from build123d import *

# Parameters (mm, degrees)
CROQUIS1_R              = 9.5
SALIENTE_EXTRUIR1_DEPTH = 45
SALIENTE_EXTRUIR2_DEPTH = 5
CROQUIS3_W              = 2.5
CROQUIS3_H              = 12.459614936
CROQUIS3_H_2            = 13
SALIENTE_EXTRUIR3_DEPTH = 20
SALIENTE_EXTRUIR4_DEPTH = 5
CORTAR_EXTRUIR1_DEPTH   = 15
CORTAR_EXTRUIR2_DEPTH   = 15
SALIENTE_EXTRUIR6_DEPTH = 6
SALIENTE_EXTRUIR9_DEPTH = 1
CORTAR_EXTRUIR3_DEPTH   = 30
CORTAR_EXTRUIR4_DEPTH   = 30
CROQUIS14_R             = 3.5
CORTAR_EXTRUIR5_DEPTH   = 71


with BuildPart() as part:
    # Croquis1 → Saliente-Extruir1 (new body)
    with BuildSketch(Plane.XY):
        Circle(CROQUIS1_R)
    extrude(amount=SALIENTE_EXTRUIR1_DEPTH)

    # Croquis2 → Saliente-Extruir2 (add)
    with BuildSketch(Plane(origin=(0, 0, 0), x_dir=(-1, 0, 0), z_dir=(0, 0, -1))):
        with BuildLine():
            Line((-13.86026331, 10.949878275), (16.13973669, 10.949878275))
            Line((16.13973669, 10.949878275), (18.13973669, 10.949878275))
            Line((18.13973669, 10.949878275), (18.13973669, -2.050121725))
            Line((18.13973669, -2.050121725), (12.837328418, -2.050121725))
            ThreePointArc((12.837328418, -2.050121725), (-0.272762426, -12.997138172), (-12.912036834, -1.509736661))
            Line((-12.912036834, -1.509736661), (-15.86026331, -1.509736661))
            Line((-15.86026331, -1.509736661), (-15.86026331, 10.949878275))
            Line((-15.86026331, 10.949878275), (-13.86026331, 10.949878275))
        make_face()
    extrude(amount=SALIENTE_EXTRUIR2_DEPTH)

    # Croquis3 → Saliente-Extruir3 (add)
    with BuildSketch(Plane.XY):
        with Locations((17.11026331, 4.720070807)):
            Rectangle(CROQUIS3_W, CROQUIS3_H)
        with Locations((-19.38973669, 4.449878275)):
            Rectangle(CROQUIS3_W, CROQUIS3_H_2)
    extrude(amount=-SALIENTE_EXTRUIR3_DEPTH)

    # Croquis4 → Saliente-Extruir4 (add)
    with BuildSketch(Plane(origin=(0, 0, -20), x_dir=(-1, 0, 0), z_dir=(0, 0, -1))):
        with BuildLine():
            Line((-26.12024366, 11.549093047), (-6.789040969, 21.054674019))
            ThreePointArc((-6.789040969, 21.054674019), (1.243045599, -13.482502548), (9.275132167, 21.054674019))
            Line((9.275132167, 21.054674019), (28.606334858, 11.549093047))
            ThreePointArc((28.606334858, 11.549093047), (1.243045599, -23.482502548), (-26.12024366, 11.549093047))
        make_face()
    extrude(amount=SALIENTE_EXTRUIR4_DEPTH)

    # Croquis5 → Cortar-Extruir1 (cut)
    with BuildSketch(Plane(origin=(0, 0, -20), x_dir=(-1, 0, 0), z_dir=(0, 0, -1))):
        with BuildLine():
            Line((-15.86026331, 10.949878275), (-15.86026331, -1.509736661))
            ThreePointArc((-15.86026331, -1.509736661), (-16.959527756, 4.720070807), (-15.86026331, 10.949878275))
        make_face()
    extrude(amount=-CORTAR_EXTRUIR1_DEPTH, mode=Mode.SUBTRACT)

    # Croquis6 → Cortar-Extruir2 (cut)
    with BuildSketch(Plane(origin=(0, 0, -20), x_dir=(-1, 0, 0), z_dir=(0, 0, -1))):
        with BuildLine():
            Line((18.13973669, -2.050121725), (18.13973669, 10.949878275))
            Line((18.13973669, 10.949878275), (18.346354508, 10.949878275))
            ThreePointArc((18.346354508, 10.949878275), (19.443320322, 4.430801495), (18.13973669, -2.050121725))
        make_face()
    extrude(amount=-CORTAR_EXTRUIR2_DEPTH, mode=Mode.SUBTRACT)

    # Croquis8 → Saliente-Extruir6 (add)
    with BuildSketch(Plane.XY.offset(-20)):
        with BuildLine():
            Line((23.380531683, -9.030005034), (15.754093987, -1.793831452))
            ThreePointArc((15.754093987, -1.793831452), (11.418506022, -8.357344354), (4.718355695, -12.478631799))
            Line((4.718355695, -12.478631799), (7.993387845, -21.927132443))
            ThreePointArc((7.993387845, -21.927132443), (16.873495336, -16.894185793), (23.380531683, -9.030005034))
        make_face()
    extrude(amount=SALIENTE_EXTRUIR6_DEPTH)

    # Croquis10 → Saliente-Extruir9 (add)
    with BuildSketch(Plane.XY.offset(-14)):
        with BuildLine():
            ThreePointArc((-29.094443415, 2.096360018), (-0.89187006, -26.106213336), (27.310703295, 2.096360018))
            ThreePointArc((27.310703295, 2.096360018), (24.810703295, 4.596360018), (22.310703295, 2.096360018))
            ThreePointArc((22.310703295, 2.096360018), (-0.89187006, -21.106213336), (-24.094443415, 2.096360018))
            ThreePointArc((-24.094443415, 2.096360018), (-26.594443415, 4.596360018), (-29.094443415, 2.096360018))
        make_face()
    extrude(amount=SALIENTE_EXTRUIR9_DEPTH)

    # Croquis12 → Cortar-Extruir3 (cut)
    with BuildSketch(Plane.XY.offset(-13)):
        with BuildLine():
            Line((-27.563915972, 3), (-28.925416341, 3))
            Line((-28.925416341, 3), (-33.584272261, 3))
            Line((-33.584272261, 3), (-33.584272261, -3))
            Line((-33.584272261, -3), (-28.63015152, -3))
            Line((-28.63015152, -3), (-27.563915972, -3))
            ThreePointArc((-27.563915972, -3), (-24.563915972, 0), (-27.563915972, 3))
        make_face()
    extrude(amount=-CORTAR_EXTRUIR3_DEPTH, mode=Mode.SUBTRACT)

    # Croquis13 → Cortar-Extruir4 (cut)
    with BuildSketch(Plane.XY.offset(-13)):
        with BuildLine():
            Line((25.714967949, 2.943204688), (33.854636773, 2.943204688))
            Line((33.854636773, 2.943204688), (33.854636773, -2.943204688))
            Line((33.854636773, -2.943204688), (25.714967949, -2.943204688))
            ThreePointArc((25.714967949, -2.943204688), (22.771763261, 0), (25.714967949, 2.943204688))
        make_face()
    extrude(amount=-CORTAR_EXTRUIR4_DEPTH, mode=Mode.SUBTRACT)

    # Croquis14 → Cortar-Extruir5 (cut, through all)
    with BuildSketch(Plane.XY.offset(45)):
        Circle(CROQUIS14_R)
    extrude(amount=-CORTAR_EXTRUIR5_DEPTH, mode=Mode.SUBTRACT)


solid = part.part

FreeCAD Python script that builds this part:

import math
import FreeCAD as App
import Part
import Sketcher

V = App.Vector

doc = App.newDocument("Part")
body = doc.addObject("PartDesign::Body", "Body")

# Sketch on XY plane
sketch1 = doc.addObject("Sketcher::SketchObject", "Sketch")
body.addObject(sketch1)
sketch1.AttachmentSupport = (doc.XY_Plane, [""])
sketch1.MapMode = "FlatFace"
sketch1.addGeometry(Part.Circle(V(0, 0, 0), V(0, 0, 1), 10), False)
sketch1.addConstraint(Sketcher.Constraint("Coincident", 0, 3, -1, 1))
sketch1.addConstraint(Sketcher.Constraint("Diameter", 0, 19.0))
pad1 = doc.addObject("PartDesign::Pad", "Pad")
body.addObject(pad1)
pad1.Profile = sketch1
pad1.Length = 45

# Sketch on XY plane
sketch2 = doc.addObject("Sketcher::SketchObject", "Sketch001")
body.addObject(sketch2)
sketch2.AttachmentSupport = (doc.XY_Plane, [""])
sketch2.MapMode = "FlatFace"
sketch2.addGeometry(Part.LineSegment(V(-18.1, -2.1, 0), V(-18.1, 10.9, 0)), False)
sketch2.addGeometry(Part.LineSegment(V(-18.1, 10.9, 0), V(15.9, 10.9, 0)), False)
sketch2.addGeometry(Part.LineSegment(V(15.9, 10.9, 0), V(15.9, -1.5, 0)), False)
sketch2.addGeometry(Part.LineSegment(V(15.9, -1.5, 0), V(12.9, -1.5, 0)), False)
sketch2.addGeometry(Part.ArcOfCircle(Part.Circle(V(0, 0, 0), V(0, 0, 1), 13), math.radians(-171), math.radians(-7)), False)
sketch2.addGeometry(Part.LineSegment(V(-12.8, -2.1, 0), V(-18.1, -2.1, 0)), False)
sketch2.addConstraint(Sketcher.Constraint("Coincident", 0, 2, 1, 1))
sketch2.addConstraint(Sketcher.Constraint("Coincident", 1, 2, 2, 1))
sketch2.addConstraint(Sketcher.Constraint("Coincident", 2, 2, 3, 1))
sketch2.addConstraint(Sketcher.Constraint("Coincident", 3, 2, 4, 2))
sketch2.addConstraint(Sketcher.Constraint("Coincident", 4, 1, 5, 1))
sketch2.addConstraint(Sketcher.Constraint("Coincident", 5, 2, 0, 1))
sketch2.addConstraint(Sketcher.Constraint("Vertical", 0))
sketch2.addConstraint(Sketcher.Constraint("Horizontal", 1))
sketch2.addConstraint(Sketcher.Constraint("Vertical", 2))
sketch2.addConstraint(Sketcher.Constraint("Horizontal", 3))
sketch2.addConstraint(Sketcher.Constraint("Horizontal", 5))
sketch2.addConstraint(Sketcher.Constraint("Coincident", 4, 3, -1, 1))
sketch2.addConstraint(Sketcher.Constraint("Radius", 4, 13.0))
sketch2.addConstraint(Sketcher.Constraint("DistanceX", 1, 1, 1, 2, 34.0))
sketch2.addConstraint(Sketcher.Constraint("DistanceY", 0, 1, 0, 2, 13.0))
sketch2.addConstraint(Sketcher.Constraint("DistanceX", 5, 2, 5, 1, 5.302408))
sketch2.addConstraint(Sketcher.Constraint("DistanceX", 3, 2, 3, 1, 2.948226))
sketch2.addConstraint(Sketcher.Constraint("DistanceY", 2, 2, 2, 1, 12.459615))
pad2 = doc.addObject("PartDesign::Pad", "Pad001")
body.addObject(pad2)
pad2.Profile = sketch2
pad2.Length = 5
pad2.Reversed = True

# Sketch on XY plane
sketch3 = doc.addObject("Sketcher::SketchObject", "Sketch002")
body.addObject(sketch3)
sketch3.AttachmentSupport = (doc.XY_Plane, [""])
sketch3.MapMode = "FlatFace"
sketch3.addGeometry(Part.LineSegment(V(15.9, 10.9, 0), V(15.9, -1.5, 0)), False)
sketch3.addGeometry(Part.LineSegment(V(15.9, -1.5, 0), V(18.4, -1.5, 0)), False)
sketch3.addGeometry(Part.LineSegment(V(18.4, -1.5, 0), V(18.4, 10.9, 0)), False)
sketch3.addGeometry(Part.LineSegment(V(18.4, 10.9, 0), V(15.9, 10.9, 0)), False)
sketch3.addGeometry(Part.LineSegment(V(-20.6, 10.9, 0), V(-20.6, -2.1, 0)), False)
sketch3.addGeometry(Part.LineSegment(V(-20.6, -2.1, 0), V(-18.1, -2.1, 0)), False)
sketch3.addGeometry(Part.LineSegment(V(-18.1, -2.1, 0), V(-18.1, 10.9, 0)), False)
sketch3.addGeometry(Part.LineSegment(V(-18.1, 10.9, 0), V(-20.6, 10.9, 0)), False)
sketch3.addConstraint(Sketcher.Constraint("Coincident", 0, 2, 1, 1))
sketch3.addConstraint(Sketcher.Constraint("Coincident", 1, 2, 2, 1))
sketch3.addConstraint(Sketcher.Constraint("Coincident", 2, 2, 3, 1))
sketch3.addConstraint(Sketcher.Constraint("Coincident", 3, 2, 0, 1))
sketch3.addConstraint(Sketcher.Constraint("Coincident", 4, 2, 5, 1))
sketch3.addConstraint(Sketcher.Constraint("Coincident", 5, 2, 6, 1))
sketch3.addConstraint(Sketcher.Constraint("Coincident", 6, 2, 7, 1))
sketch3.addConstraint(Sketcher.Constraint("Coincident", 7, 2, 4, 1))
sketch3.addConstraint(Sketcher.Constraint("Vertical", 0))
sketch3.addConstraint(Sketcher.Constraint("Horizontal", 1))
sketch3.addConstraint(Sketcher.Constraint("Vertical", 2))
sketch3.addConstraint(Sketcher.Constraint("Horizontal", 3))
sketch3.addConstraint(Sketcher.Constraint("Vertical", 4))
sketch3.addConstraint(Sketcher.Constraint("Horizontal", 5))
sketch3.addConstraint(Sketcher.Constraint("Vertical", 6))
sketch3.addConstraint(Sketcher.Constraint("Horizontal", 7))
sketch3.addConstraint(Sketcher.Constraint("Horizontal", 3, 2, 6, 2))
sketch3.addConstraint(Sketcher.Constraint("Equal", 3, 5))
sketch3.addConstraint(Sketcher.Constraint("DistanceY", 4, 2, 4, 1, 13.0))
sketch3.addConstraint(Sketcher.Constraint("DistanceX", 1, 1, 1, 2, 2.5))
sketch3.addConstraint(Sketcher.Constraint("DistanceX", 4, 2, 1, 2, 39.0))
sketch3.addConstraint(Sketcher.Constraint("DistanceY", 0, 2, 0, 1, 12.459615))
sketch3.addConstraint(Sketcher.Constraint("DistanceY", -1, 1, 2, 2, 10.949878))
sketch3.addConstraint(Sketcher.Constraint("DistanceX", -1, 1, 0, 2, 15.860263))
pad3 = doc.addObject("PartDesign::Pad", "Pad002")
body.addObject(pad3)
pad3.Profile = sketch3
pad3.Length = 20
pad3.Reversed = True

# Sketch on XY plane
sketch4 = doc.addObject("Sketcher::SketchObject", "Sketch003")
body.addObject(sketch4)
sketch4.AttachmentSupport = (doc.XY_Plane, [""])
sketch4.MapMode = "FlatFace"
sketch4.AttachmentOffset = App.Placement(V(0, 0, -20), App.Rotation())
sketch4.addGeometry(Part.LineSegment(V(7, 21, 0), V(26, 12, 0)), False)
sketch4.addGeometry(Part.ArcOfCircle(Part.Circle(V(-1, 5, 0), V(0, 0, 1), 28), math.radians(166), math.radians(374)), False)
sketch4.addGeometry(Part.LineSegment(V(-29, 12, 0), V(-9, 21, 0)), False)
sketch4.addGeometry(Part.ArcOfCircle(Part.Circle(V(-1, 5, 0), V(0, 0, 1), 18), math.radians(116), math.radians(424)), False)
sketch4.addConstraint(Sketcher.Constraint("Coincident", 0, 2, 1, 2))
sketch4.addConstraint(Sketcher.Constraint("Coincident", 1, 1, 2, 1))
sketch4.addConstraint(Sketcher.Constraint("Tangent", 2, 2, 3, 1))
sketch4.addConstraint(Sketcher.Constraint("Tangent", 3, 2, 0, 1))
sketch4.addConstraint(Sketcher.Constraint("Coincident", 3, 3, 1, 3))
sketch4.addConstraint(Sketcher.Constraint("Horizontal", 0, 2, 1, 1))
sketch4.addConstraint(Sketcher.Constraint("Radius", 1, 28.202573))
sketch4.addConstraint(Sketcher.Constraint("Radius", 3, 18.202573))
sketch4.addConstraint(Sketcher.Constraint("DistanceY", -1, 1, 1, 3, 4.720071))
sketch4.addConstraint(Sketcher.Constraint("DistanceX", -1, 1, 3, 2, 6.789041))
sketch4.addConstraint(Sketcher.Constraint("DistanceX", 1, 3, 0, 2, 27.363289))
pad4 = doc.addObject("PartDesign::Pad", "Pad003")
body.addObject(pad4)
pad4.Profile = sketch4
pad4.Length = 5
pad4.Reversed = True

# Sketch on XY plane
sketch5 = doc.addObject("Sketcher::SketchObject", "Sketch004")
body.addObject(sketch5)
sketch5.AttachmentSupport = (doc.XY_Plane, [""])
sketch5.MapMode = "FlatFace"
sketch5.AttachmentOffset = App.Placement(V(0, 0, -20), App.Rotation())
sketch5.addGeometry(Part.LineSegment(V(16, -2, 0), V(16, 11, 0)), False)
sketch5.addGeometry(Part.ArcOfCircle(Part.Circle(V(-1, 5, 0), V(0, 0, 1), 18), math.radians(-20), math.radians(20)), False)
sketch5.addConstraint(Sketcher.Constraint("Coincident", 0, 1, 1, 1))
sketch5.addConstraint(Sketcher.Constraint("Coincident", 1, 2, 0, 2))
sketch5.addConstraint(Sketcher.Constraint("Vertical", 0))
sketch5.addConstraint(Sketcher.Constraint("Radius", 1, 18.202573))
sketch5.addConstraint(Sketcher.Constraint("DistanceY", 0, 1, 0, 2, 12.459615))
sketch5.addConstraint(Sketcher.Constraint("DistanceY", -1, 1, 1, 3, 4.720071))
sketch5.addConstraint(Sketcher.Constraint("DistanceX", 1, 3, -1, 1, 1.243046))
pocket1 = doc.addObject("PartDesign::Pocket", "Pocket")
body.addObject(pocket1)
pocket1.Profile = sketch5
pocket1.Length = 15
pocket1.Reversed = True

# Sketch on XY plane
sketch6 = doc.addObject("Sketcher::SketchObject", "Sketch005")
body.addObject(sketch6)
sketch6.AttachmentSupport = (doc.XY_Plane, [""])
sketch6.MapMode = "FlatFace"
sketch6.AttachmentOffset = App.Placement(V(0, 0, -20), App.Rotation())
sketch6.addGeometry(Part.LineSegment(V(-18.14, 10.95, 0), V(-18.14, -2.05, 0)), False)
sketch6.addGeometry(Part.ArcOfCircle(Part.Circle(V(-1.24, 4.72, 0), V(0, 0, 1), 18.2), math.radians(160), math.radians(202)), False)
sketch6.addGeometry(Part.LineSegment(V(-18.35, 10.95, 0), V(-18.14, 10.95, 0)), False)
sketch6.addConstraint(Sketcher.Constraint("Coincident", 0, 2, 1, 2))
sketch6.addConstraint(Sketcher.Constraint("Coincident", 1, 1, 2, 1))
sketch6.addConstraint(Sketcher.Constraint("Coincident", 2, 2, 0, 1))
sketch6.addConstraint(Sketcher.Constraint("Vertical", 0))
sketch6.addConstraint(Sketcher.Constraint("Horizontal", 2))
sketch6.addConstraint(Sketcher.Constraint("DistanceY", 0, 2, 0, 1, 13.0))
sketch6.addConstraint(Sketcher.Constraint("Radius", 1, 18.202573))
sketch6.addConstraint(Sketcher.Constraint("DistanceX", 2, 1, 2, 2, 0.206618))
sketch6.addConstraint(Sketcher.Constraint("DistanceY", -1, 1, 1, 3, 4.720071))
sketch6.addConstraint(Sketcher.Constraint("DistanceX", 1, 3, -1, 1, 1.243046))
pocket2 = doc.addObject("PartDesign::Pocket", "Pocket001")
body.addObject(pocket2)
pocket2.Profile = sketch6
pocket2.Length = 15
pocket2.Reversed = True

# Sketch on XY plane
sketch7 = doc.addObject("Sketcher::SketchObject", "Sketch006")
body.addObject(sketch7)
sketch7.AttachmentSupport = (doc.XY_Plane, [""])
sketch7.MapMode = "FlatFace"
sketch7.AttachmentOffset = App.Placement(V(0, 0, -20), App.Rotation())
sketch7.addGeometry(Part.LineSegment(V(23, -9, 0), V(16, -2, 0)), False)
sketch7.addGeometry(Part.ArcOfCircle(Part.Circle(V(-1, 5, 0), V(0, 0, 1), 18), math.radians(-71), math.radians(-21)), False)
sketch7.addGeometry(Part.LineSegment(V(5, -12, 0), V(8, -22, 0)), False)
sketch7.addGeometry(Part.ArcOfCircle(Part.Circle(V(-1, 5, 0), V(0, 0, 1), 28), math.radians(-71), math.radians(-29)), False)
sketch7.addConstraint(Sketcher.Constraint("Coincident", 0, 2, 1, 2))
sketch7.addConstraint(Sketcher.Constraint("Coincident", 1, 1, 2, 1))
sketch7.addConstraint(Sketcher.Constraint("Coincident", 2, 2, 3, 1))
sketch7.addConstraint(Sketcher.Constraint("Coincident", 3, 2, 0, 1))
sketch7.addConstraint(Sketcher.Constraint("Coincident", 3, 3, 1, 3))
sketch7.addConstraint(Sketcher.Constraint("Distance", 2, 10.0))
sketch7.addConstraint(Sketcher.Constraint("Radius", 1, 18.202573))
sketch7.addConstraint(Sketcher.Constraint("DistanceY", 1, 1, 0, 2, 10.6848))
sketch7.addConstraint(Sketcher.Constraint("DistanceX", 3, 3, 1, 1, 5.961401))
sketch7.addConstraint(Sketcher.Constraint("DistanceY", 2, 2, 1, 1, 9.448501))
sketch7.addConstraint(Sketcher.Constraint("DistanceY", -1, 1, 1, 3, 4.720071))
sketch7.addConstraint(Sketcher.Constraint("DistanceX", -1, 1, 3, 2, 23.380532))
sketch7.addConstraint(Sketcher.Constraint("Distance", 0, 10.513076))
pad5 = doc.addObject("PartDesign::Pad", "Pad004")
body.addObject(pad5)
pad5.Profile = sketch7
pad5.Length = 6

# Sketch on XY plane
sketch8 = doc.addObject("Sketcher::SketchObject", "Sketch007")
body.addObject(sketch8)
sketch8.AttachmentSupport = (doc.XY_Plane, [""])
sketch8.MapMode = "FlatFace"
sketch8.AttachmentOffset = App.Placement(V(0, 0, -14), App.Rotation())
sketch8.addGeometry(Part.ArcOfCircle(Part.Circle(V(-0.9, 2.1, 0), V(0, 0, 1), 28.2), math.radians(-180), math.radians(0)), False)
sketch8.addGeometry(Part.ArcOfCircle(Part.Circle(V(24.8, 2.1, 0), V(0, 0, 1), 2.5), math.radians(0), math.radians(180)), False)
sketch8.addGeometry(Part.ArcOfCircle(Part.Circle(V(-0.9, 2.1, 0), V(0, 0, 1), 23.2), math.radians(-180), math.radians(0)), False)
sketch8.addGeometry(Part.ArcOfCircle(Part.Circle(V(-26.6, 2.1, 0), V(0, 0, 1), 2.5), math.radians(0), math.radians(180)), False)
sketch8.addConstraint(Sketcher.Constraint("Tangent", 0, 2, 1, 1))
sketch8.addConstraint(Sketcher.Constraint("Tangent", 1, 2, 2, 2))
sketch8.addConstraint(Sketcher.Constraint("Tangent", 2, 1, 3, 1))
sketch8.addConstraint(Sketcher.Constraint("Tangent", 3, 2, 0, 1))
sketch8.addConstraint(Sketcher.Constraint("Coincident", 2, 3, 0, 3))
sketch8.addConstraint(Sketcher.Constraint("Horizontal", 0, 3, 1, 3))
sketch8.addConstraint(Sketcher.Constraint("Horizontal", 2, 3, 3, 3))
sketch8.addConstraint(Sketcher.Constraint("Radius", 1, 2.5))
sketch8.addConstraint(Sketcher.Constraint("Radius", 0, 28.202573))
sketch8.addConstraint(Sketcher.Constraint("DistanceX", 0, 3, -1, 1, 0.89187))
sketch8.addConstraint(Sketcher.Constraint("DistanceY", -1, 1, 0, 3, 2.09636))
pad6 = doc.addObject("PartDesign::Pad", "Pad005")
body.addObject(pad6)
pad6.Profile = sketch8
pad6.Length = 1

# Sketch on XY plane
sketch9 = doc.addObject("Sketcher::SketchObject", "Sketch008")
body.addObject(sketch9)
sketch9.AttachmentSupport = (doc.XY_Plane, [""])
sketch9.MapMode = "FlatFace"
sketch9.AttachmentOffset = App.Placement(V(0, 0, -13), App.Rotation())
sketch9.addGeometry(Part.LineSegment(V(-27.6, 3, 0), V(-33.6, 3, 0)), False)
sketch9.addGeometry(Part.LineSegment(V(-33.6, 3, 0), V(-33.6, -3, 0)), False)
sketch9.addGeometry(Part.LineSegment(V(-33.6, -3, 0), V(-27.6, -3, 0)), False)
sketch9.addGeometry(Part.ArcOfCircle(Part.Circle(V(-27.6, 0, 0), V(0, 0, 1), 3), math.radians(-90), math.radians(90)), False)
sketch9.addConstraint(Sketcher.Constraint("Coincident", 0, 2, 1, 1))
sketch9.addConstraint(Sketcher.Constraint("Coincident", 1, 2, 2, 1))
sketch9.addConstraint(Sketcher.Constraint("Tangent", 2, 2, 3, 1))
sketch9.addConstraint(Sketcher.Constraint("Tangent", 3, 2, 0, 1))
sketch9.addConstraint(Sketcher.Constraint("Horizontal", 0))
sketch9.addConstraint(Sketcher.Constraint("Vertical", 1))
sketch9.addConstraint(Sketcher.Constraint("Horizontal", 2))
sketch9.addConstraint(Sketcher.Constraint("PointOnObject", 3, 3, -1))
sketch9.addConstraint(Sketcher.Constraint("Radius", 3, 3.0))
sketch9.addConstraint(Sketcher.Constraint("DistanceX", 0, 2, 0, 1, 6.020356))
sketch9.addConstraint(Sketcher.Constraint("DistanceX", 3, 3, -1, 1, 27.563916))
pocket3 = doc.addObject("PartDesign::Pocket", "Pocket002")
body.addObject(pocket3)
pocket3.Profile = sketch9
pocket3.Length = 30

# Sketch on XY plane
sketch10 = doc.addObject("Sketcher::SketchObject", "Sketch009")
body.addObject(sketch10)
sketch10.AttachmentSupport = (doc.XY_Plane, [""])
sketch10.MapMode = "FlatFace"
sketch10.AttachmentOffset = App.Placement(V(0, 0, -13), App.Rotation())
sketch10.addGeometry(Part.LineSegment(V(33.9, 2.9, 0), V(25.7, 2.9, 0)), False)
sketch10.addGeometry(Part.ArcOfCircle(Part.Circle(V(25.7, 0, 0), V(0, 0, 1), 2.9), math.radians(90), math.radians(270)), False)
sketch10.addGeometry(Part.LineSegment(V(25.7, -2.9, 0), V(33.9, -2.9, 0)), False)
sketch10.addGeometry(Part.LineSegment(V(33.9, -2.9, 0), V(33.9, 2.9, 0)), False)
sketch10.addConstraint(Sketcher.Constraint("Tangent", 0, 2, 1, 1))
sketch10.addConstraint(Sketcher.Constraint("Tangent", 1, 2, 2, 1))
sketch10.addConstraint(Sketcher.Constraint("Coincident", 2, 2, 3, 1))
sketch10.addConstraint(Sketcher.Constraint("Coincident", 3, 2, 0, 1))
sketch10.addConstraint(Sketcher.Constraint("Horizontal", 0))
sketch10.addConstraint(Sketcher.Constraint("Horizontal", 2))
sketch10.addConstraint(Sketcher.Constraint("Vertical", 3))
sketch10.addConstraint(Sketcher.Constraint("PointOnObject", 1, 3, -1))
sketch10.addConstraint(Sketcher.Constraint("Radius", 1, 2.943205))
sketch10.addConstraint(Sketcher.Constraint("DistanceX", 0, 2, 0, 1, 8.139669))
sketch10.addConstraint(Sketcher.Constraint("DistanceX", -1, 1, 1, 3, 25.714968))
pocket4 = doc.addObject("PartDesign::Pocket", "Pocket003")
body.addObject(pocket4)
pocket4.Profile = sketch10
pocket4.Length = 30

# Sketch on XY plane
sketch11 = doc.addObject("Sketcher::SketchObject", "Sketch010")
body.addObject(sketch11)
sketch11.AttachmentSupport = (doc.XY_Plane, [""])
sketch11.MapMode = "FlatFace"
sketch11.AttachmentOffset = App.Placement(V(0, 0, 45), App.Rotation())
sketch11.addGeometry(Part.Circle(V(0, 0, 0), V(0, 0, 1), 3.5), False)
sketch11.addConstraint(Sketcher.Constraint("Coincident", 0, 3, -1, 1))
sketch11.addConstraint(Sketcher.Constraint("Diameter", 0, 7.0))
pocket5 = doc.addObject("PartDesign::Pocket", "Pocket004")
body.addObject(pocket5)
pocket5.Profile = sketch11
pocket5.Type = "ThroughAll"

doc.recompute()
